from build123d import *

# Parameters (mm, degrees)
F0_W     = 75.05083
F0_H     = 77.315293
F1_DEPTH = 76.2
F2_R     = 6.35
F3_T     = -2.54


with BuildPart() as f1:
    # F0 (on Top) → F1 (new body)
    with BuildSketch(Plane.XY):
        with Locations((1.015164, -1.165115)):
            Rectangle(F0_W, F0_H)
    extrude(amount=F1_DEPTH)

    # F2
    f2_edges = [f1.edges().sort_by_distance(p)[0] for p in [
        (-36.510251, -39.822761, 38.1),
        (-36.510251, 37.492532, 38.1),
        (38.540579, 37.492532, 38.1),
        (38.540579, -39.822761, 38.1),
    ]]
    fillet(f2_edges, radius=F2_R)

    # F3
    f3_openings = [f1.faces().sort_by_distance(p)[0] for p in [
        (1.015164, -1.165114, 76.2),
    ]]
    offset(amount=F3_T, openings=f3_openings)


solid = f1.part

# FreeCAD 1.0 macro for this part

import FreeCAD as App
import Part
import Sketcher
from FreeCAD import Vector
Q = App.Units.Quantity


def edges_at(feature, points):
    """Names of the edges that pass closest to the given points."""
    edges = feature.Shape.Edges
    near = lambda p: min(range(len(edges)), key=lambda i: edges[i].distToShape(Part.Vertex(*p))[0])
    return sorted({f"Edge{near(p) + 1}" for p in points})


def faces_at(feature, points):
    """Names of the faces that lie closest to the given points."""
    faces = feature.Shape.Faces
    near = lambda p: min(range(len(faces)), key=lambda i: faces[i].distToShape(Part.Vertex(*p))[0])
    return sorted({f"Face{near(p) + 1}" for p in points})

doc = App.newDocument("Part")
body = doc.addObject("PartDesign::Body", "Body")

sketch1 = doc.addObject("Sketcher::SketchObject", "Sketch")
body.addObject(sketch1)
sketch1.AttachmentSupport = (doc.XY_Plane, [""])
sketch1.MapMode = "FlatFace"
sketch1.addGeometry([
    Part.LineSegment(Vector(-36.510251, 37.492531, 0), Vector(-36.510251, -39.822761, 0)),
    Part.LineSegment(Vector(-36.510251, -39.822761, 0), Vector(38.540579, -39.822761, 0)),
    Part.LineSegment(Vector(38.540579, -39.822761, 0), Vector(38.540579, 37.492531, 0)),
    Part.LineSegment(Vector(38.540579, 37.492531, 0), Vector(-36.510251, 37.492531, 0)),
], False)
sketch1.addConstraint([
    Sketcher.Constraint("Coincident", 0, 2, 1, 1),
    Sketcher.Constraint("Coincident", 1, 2, 2, 1),
    Sketcher.Constraint("Coincident", 2, 2, 3, 1),
    Sketcher.Constraint("Coincident", 3, 2, 0, 1),
    Sketcher.Constraint("Vertical", 0),
    Sketcher.Constraint("Horizontal", 1),
    Sketcher.Constraint("Vertical", 2),
    Sketcher.Constraint("Horizontal", 3),
    Sketcher.Constraint("DistanceX", 1, 1, 1, 2, Q("75.05083 mm")),
    Sketcher.Constraint("DistanceY", 0, 2, 0, 1, Q("77.315293 mm")),
    Sketcher.Constraint("DistanceX", 0, 2, -1, 1, Q("36.510251 mm")),
    Sketcher.Constraint("DistanceY", 0, 2, -1, 1, Q("39.822761 mm")),
])
pad1 = doc.addObject("PartDesign::Pad", "Pad")
body.addObject(pad1)
pad1.Profile = sketch1
pad1.Length = Q("3 in")
doc.recompute()

fillet = doc.addObject("PartDesign::Fillet", "Fillet")
body.addObject(fillet)
fillet.Base = (pad1, edges_at(pad1, [
    (-36.51, -39.823, 38.1),
    (-36.51, 37.493, 38.1),
    (38.541, 37.493, 38.1),
    (38.541, -39.823, 38.1),
]))
fillet.Radius = Q("0.25 in")
doc.recompute()

thickness = doc.addObject("PartDesign::Thickness", "Thickness")
body.addObject(thickness)
thickness.Base = (fillet, faces_at(fillet, [(1.015, -1.165, 76.2)]))
thickness.Value = Q("0.1 in")
thickness.Reversed = True
thickness.Join = "Arc"

doc.recompute()
